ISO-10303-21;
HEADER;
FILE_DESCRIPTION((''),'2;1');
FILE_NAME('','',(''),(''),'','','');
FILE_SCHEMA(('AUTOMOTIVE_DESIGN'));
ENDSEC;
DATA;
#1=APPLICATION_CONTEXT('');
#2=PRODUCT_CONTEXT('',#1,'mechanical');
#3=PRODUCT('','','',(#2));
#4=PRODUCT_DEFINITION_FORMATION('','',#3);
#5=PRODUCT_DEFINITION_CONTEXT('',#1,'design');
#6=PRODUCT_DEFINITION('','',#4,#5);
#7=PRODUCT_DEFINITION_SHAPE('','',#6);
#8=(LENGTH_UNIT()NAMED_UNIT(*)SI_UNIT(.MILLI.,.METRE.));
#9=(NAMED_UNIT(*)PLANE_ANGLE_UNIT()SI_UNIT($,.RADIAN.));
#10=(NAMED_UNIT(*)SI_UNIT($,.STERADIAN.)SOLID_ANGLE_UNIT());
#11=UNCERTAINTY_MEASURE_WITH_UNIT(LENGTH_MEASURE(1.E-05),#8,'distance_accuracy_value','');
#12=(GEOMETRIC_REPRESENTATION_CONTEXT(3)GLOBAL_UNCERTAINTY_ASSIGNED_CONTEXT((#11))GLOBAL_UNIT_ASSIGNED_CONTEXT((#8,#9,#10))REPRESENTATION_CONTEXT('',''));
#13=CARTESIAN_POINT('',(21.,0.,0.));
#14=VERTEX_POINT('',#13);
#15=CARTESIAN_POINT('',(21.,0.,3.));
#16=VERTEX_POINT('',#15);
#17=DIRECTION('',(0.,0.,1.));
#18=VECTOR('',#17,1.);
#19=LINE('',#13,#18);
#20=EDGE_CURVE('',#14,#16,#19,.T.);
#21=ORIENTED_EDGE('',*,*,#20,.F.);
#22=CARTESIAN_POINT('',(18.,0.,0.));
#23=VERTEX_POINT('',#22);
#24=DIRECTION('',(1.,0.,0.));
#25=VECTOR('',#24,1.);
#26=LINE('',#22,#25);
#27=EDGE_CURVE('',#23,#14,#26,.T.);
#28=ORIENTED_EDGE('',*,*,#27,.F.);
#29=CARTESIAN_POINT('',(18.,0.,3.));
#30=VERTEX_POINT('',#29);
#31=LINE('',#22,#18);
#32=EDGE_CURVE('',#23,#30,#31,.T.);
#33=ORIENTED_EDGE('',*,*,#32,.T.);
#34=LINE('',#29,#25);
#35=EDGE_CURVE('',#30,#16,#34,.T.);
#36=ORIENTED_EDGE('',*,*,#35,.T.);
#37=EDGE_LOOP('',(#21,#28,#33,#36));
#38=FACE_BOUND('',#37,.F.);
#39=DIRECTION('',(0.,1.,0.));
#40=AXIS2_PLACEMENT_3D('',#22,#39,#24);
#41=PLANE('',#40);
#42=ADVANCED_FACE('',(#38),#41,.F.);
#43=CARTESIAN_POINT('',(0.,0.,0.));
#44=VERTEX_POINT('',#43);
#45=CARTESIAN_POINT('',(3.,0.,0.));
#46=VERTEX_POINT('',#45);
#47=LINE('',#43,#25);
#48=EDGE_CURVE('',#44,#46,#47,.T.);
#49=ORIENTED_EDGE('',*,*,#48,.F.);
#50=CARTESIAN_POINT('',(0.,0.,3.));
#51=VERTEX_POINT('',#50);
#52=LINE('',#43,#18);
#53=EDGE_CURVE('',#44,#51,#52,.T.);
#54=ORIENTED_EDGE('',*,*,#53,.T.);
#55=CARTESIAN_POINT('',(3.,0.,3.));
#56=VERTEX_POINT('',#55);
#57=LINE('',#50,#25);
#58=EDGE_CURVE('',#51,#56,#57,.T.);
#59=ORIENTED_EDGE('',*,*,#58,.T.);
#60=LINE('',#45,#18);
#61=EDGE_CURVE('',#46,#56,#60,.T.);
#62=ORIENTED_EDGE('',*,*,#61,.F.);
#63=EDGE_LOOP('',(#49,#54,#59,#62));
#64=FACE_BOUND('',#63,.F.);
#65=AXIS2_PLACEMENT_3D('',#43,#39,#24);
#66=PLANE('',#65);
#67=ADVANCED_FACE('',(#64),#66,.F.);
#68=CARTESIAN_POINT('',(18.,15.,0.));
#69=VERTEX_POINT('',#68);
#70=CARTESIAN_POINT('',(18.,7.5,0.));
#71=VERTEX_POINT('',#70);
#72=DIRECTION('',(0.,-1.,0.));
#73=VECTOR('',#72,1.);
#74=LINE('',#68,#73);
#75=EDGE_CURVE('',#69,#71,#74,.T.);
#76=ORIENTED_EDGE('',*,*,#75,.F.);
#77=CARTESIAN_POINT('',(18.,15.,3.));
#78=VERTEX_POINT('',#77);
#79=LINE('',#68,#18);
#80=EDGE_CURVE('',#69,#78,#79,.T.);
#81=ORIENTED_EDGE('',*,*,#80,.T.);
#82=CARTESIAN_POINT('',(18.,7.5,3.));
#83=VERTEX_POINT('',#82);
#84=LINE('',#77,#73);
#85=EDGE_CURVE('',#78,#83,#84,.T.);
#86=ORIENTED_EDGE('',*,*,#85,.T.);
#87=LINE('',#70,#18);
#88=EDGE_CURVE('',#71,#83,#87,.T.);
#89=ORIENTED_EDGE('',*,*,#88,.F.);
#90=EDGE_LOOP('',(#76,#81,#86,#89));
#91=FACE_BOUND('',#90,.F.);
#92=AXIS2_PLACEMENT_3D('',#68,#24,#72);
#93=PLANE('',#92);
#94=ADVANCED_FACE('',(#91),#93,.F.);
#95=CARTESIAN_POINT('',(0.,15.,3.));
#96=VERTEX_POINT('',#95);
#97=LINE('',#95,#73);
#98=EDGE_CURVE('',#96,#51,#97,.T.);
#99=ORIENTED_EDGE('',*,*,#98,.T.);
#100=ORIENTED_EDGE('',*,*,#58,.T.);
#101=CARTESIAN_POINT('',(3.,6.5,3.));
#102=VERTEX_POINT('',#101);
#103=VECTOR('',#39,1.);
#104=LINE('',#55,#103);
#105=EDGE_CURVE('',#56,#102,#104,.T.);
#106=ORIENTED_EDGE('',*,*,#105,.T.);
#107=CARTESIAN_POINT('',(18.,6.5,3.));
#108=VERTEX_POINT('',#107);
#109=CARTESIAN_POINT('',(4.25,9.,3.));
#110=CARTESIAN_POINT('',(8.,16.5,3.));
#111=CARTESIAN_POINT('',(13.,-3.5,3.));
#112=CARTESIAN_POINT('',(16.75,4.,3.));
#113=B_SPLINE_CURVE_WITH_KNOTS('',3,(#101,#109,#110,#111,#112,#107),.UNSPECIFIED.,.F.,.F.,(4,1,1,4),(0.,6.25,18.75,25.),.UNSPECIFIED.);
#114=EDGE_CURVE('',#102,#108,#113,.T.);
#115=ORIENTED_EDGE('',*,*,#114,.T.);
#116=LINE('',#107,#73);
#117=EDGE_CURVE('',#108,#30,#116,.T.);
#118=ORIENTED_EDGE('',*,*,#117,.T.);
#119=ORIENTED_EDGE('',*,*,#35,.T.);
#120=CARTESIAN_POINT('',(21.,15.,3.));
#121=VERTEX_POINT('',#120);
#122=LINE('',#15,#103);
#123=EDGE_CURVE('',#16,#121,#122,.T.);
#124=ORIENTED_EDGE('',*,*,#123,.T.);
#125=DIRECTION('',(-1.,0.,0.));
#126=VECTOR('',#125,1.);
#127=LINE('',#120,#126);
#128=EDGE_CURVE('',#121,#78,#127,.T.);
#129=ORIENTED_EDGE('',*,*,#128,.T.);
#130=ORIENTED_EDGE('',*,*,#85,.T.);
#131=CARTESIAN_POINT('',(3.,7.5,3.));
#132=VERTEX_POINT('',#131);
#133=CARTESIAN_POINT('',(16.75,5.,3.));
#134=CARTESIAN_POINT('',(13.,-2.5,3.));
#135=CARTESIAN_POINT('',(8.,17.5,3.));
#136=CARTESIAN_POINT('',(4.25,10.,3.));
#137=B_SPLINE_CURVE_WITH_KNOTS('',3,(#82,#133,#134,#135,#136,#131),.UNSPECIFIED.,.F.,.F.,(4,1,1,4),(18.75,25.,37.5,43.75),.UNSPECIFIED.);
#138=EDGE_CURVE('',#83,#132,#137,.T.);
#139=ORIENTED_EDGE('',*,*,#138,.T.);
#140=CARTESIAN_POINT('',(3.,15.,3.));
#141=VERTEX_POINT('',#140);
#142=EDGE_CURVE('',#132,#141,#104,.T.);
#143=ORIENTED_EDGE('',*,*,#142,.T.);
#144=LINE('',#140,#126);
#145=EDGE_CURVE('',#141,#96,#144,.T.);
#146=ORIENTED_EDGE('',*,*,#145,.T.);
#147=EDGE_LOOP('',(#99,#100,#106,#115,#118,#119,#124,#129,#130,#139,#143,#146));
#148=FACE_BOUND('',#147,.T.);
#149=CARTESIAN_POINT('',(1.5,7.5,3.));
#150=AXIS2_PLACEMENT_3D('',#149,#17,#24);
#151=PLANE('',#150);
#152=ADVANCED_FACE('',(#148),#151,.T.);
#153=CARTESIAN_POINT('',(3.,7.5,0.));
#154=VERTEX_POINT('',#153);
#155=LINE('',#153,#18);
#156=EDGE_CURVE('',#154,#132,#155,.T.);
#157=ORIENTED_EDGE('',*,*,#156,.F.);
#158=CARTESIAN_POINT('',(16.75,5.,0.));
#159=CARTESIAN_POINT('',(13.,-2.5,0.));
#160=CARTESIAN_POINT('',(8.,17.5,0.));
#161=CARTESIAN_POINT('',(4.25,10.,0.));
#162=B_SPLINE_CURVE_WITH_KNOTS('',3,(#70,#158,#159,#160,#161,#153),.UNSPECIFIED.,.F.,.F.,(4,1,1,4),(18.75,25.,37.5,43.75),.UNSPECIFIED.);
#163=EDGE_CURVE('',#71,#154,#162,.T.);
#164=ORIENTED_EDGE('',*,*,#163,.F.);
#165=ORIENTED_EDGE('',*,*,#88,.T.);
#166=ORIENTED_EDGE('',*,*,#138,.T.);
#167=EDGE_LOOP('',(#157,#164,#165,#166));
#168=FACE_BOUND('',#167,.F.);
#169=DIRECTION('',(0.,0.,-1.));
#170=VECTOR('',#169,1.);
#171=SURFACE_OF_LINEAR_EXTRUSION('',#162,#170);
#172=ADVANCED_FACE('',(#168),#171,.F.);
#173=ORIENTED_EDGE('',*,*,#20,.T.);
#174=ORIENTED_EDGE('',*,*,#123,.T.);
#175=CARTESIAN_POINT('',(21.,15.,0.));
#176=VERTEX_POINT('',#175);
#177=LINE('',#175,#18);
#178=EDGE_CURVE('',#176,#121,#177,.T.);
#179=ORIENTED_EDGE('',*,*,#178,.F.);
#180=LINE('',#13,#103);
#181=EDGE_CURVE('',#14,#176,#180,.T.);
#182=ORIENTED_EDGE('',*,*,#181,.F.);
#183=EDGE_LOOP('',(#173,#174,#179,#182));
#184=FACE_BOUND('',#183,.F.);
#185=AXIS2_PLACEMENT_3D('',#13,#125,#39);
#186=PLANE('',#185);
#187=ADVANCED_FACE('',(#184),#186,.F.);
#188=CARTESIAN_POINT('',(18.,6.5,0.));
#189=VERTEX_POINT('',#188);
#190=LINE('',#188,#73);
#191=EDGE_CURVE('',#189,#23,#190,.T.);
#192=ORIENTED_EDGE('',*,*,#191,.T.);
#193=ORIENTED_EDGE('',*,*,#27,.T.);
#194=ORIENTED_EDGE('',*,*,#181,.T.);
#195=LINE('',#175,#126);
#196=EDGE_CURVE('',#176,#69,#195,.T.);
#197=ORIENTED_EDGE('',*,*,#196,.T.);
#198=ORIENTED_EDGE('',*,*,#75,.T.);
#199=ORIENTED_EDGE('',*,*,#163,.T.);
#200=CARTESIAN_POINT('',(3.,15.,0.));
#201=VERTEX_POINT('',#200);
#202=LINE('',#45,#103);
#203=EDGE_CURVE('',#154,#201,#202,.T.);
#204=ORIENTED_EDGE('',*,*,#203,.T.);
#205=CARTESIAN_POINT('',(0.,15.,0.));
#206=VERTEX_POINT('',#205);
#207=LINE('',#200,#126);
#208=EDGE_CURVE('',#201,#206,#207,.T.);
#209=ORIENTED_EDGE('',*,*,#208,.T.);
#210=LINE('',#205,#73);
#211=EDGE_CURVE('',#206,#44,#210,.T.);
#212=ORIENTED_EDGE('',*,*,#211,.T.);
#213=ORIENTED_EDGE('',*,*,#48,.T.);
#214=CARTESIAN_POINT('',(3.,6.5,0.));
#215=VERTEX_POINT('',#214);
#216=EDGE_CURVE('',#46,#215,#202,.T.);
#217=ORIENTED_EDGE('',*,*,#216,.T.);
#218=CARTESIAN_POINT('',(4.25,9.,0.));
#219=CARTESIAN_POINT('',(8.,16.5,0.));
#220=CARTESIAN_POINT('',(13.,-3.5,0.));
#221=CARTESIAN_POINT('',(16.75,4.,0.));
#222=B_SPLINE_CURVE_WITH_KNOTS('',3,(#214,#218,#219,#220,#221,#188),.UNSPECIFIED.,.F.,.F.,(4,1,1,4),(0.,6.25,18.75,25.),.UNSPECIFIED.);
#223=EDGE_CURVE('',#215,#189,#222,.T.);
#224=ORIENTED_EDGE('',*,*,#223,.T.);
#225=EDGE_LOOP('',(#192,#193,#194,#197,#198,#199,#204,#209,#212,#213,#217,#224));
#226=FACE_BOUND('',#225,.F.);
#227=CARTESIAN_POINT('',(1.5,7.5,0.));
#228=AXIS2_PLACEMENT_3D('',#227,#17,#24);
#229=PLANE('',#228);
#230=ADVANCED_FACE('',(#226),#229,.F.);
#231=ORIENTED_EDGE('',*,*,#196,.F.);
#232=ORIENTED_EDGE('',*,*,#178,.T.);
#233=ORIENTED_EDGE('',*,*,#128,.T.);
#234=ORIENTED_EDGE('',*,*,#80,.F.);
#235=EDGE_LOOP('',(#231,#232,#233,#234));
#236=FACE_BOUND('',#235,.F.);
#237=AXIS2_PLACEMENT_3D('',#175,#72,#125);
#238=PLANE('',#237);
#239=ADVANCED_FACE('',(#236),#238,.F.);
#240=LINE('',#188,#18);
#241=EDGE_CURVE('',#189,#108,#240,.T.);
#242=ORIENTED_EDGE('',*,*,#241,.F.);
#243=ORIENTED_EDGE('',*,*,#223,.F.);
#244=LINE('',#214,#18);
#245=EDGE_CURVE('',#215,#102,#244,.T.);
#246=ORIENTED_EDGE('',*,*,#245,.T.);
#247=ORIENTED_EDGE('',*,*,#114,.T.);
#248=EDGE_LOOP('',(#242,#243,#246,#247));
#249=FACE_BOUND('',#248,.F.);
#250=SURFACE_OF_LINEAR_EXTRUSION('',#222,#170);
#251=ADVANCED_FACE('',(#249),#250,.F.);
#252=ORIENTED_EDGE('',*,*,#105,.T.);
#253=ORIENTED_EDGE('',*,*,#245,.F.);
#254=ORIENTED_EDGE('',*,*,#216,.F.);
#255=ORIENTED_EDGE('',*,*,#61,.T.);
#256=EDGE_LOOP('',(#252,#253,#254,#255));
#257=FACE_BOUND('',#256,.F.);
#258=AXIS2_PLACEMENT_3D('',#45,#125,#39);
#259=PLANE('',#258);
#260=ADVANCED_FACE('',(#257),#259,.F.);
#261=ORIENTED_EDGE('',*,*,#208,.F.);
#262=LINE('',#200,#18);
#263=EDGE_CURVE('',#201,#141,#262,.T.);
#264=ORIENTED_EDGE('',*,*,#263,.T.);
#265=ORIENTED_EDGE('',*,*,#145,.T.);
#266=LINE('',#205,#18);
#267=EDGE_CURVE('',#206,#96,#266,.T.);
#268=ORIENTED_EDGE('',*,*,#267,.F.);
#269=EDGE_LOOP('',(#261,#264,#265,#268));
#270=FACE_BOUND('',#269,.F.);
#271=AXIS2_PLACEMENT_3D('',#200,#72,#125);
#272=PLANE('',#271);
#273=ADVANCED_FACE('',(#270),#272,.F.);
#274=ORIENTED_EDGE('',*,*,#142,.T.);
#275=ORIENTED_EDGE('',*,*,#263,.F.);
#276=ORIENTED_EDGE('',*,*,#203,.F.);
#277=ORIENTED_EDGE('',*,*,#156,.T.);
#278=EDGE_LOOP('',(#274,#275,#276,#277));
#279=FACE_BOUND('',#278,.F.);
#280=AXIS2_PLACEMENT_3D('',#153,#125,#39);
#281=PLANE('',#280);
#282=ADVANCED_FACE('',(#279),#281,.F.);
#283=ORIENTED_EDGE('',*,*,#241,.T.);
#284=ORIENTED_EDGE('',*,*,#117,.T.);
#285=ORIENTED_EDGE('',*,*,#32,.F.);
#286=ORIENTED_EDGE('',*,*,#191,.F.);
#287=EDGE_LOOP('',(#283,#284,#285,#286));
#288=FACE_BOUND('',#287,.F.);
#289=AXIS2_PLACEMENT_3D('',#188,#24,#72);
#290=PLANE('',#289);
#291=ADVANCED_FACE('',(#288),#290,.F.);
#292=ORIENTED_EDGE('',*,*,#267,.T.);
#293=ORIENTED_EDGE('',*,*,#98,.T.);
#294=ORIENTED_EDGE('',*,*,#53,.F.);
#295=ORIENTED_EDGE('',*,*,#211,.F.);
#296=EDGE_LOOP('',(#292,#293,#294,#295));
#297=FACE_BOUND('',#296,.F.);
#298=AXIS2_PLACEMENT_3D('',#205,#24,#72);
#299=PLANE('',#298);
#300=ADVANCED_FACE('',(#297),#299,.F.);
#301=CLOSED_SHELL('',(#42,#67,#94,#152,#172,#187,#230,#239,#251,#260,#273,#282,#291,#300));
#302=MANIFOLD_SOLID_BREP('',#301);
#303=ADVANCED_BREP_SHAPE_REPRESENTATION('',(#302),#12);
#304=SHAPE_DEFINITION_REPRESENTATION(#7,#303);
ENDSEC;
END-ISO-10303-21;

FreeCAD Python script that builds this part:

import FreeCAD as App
import Part
import Sketcher
from FreeCAD import Vector

doc = App.newDocument("Part")
body = doc.addObject("PartDesign::Body", "Body")

# Sketch on XY plane
sketch1 = doc.addObject("Sketcher::SketchObject", "Sketch")
body.addObject(sketch1)
sketch1.AttachmentSupport = (doc.XY_Plane, [""])
sketch1.MapMode = "FlatFace"
sketch1.addGeometry(Part.LineSegment(Vector(0, 15, 0), Vector(0, 0, 0)), False)
sketch1.addGeometry(Part.LineSegment(Vector(0, 0, 0), Vector(3, 0, 0)), False)
sketch1.addGeometry(Part.LineSegment(Vector(3, 0, 0), Vector(3, 6.5, 0)), False)
sketch1.addGeometry(Part.BSplineCurve([Vector(3, 6.5, 0), Vector(4.25, 9, 0), Vector(8, 16.5, 0), Vector(13, -3.5, 0), Vector(16.75, 4, 0), Vector(18, 6.5, 0)], [4, 1, 1, 4], [0, 6.25, 18.75, 25], False, 3, [1, 1, 1, 1, 1, 1], False), False)
sketch1.addGeometry(Part.LineSegment(Vector(18, 6.5, 0), Vector(18, 0, 0)), False)
sketch1.addGeometry(Part.LineSegment(Vector(18, 0, 0), Vector(21, 0, 0)), False)
sketch1.addGeometry(Part.LineSegment(Vector(21, 0, 0), Vector(21, 15, 0)), False)
sketch1.addGeometry(Part.LineSegment(Vector(21, 15, 0), Vector(18, 15, 0)), False)
sketch1.addGeometry(Part.LineSegment(Vector(18, 15, 0), Vector(18, 7.5, 0)), False)
sketch1.addGeometry(Part.BSplineCurve([Vector(18, 7.5, 0), Vector(16.75, 5, 0), Vector(13, -2.5, 0), Vector(8, 17.5, 0), Vector(4.25, 10, 0), Vector(3, 7.5, 0)], [4, 1, 1, 4], [18.75, 25, 37.5, 43.75], False, 3, [1, 1, 1, 1, 1, 1], False), False)
sketch1.addGeometry(Part.LineSegment(Vector(3, 7.5, 0), Vector(3, 15, 0)), False)
sketch1.addGeometry(Part.LineSegment(Vector(3, 15, 0), Vector(0, 15, 0)), False)
sketch1.addConstraint(Sketcher.Constraint("Block", 3))
sketch1.addConstraint(Sketcher.Constraint("Block", 9))
sketch1.addConstraint(Sketcher.Constraint("Coincident", 0, 2, 1, 1))
sketch1.addConstraint(Sketcher.Constraint("Coincident", 1, 2, 2, 1))
sketch1.addConstraint(Sketcher.Constraint("Coincident", 2, 2, 3, 1))
sketch1.addConstraint(Sketcher.Constraint("Coincident", 3, 2, 4, 1))
sketch1.addConstraint(Sketcher.Constraint("Coincident", 4, 2, 5, 1))
sketch1.addConstraint(Sketcher.Constraint("Coincident", 5, 2, 6, 1))
sketch1.addConstraint(Sketcher.Constraint("Coincident", 6, 2, 7, 1))
sketch1.addConstraint(Sketcher.Constraint("Coincident", 7, 2, 8, 1))
sketch1.addConstraint(Sketcher.Constraint("Coincident", 8, 2, 9, 1))
sketch1.addConstraint(Sketcher.Constraint("Coincident", 9, 2, 10, 1))
sketch1.addConstraint(Sketcher.Constraint("Coincident", 10, 2, 11, 1))
sketch1.addConstraint(Sketcher.Constraint("Coincident", 11, 2, 0, 1))
sketch1.addConstraint(Sketcher.Constraint("Vertical", 0))
sketch1.addConstraint(Sketcher.Constraint("Horizontal", 1))
sketch1.addConstraint(Sketcher.Constraint("Vertical", 2))
sketch1.addConstraint(Sketcher.Constraint("Vertical", 4))
sketch1.addConstraint(Sketcher.Constraint("Horizontal", 5))
sketch1.addConstraint(Sketcher.Constraint("Vertical", 6))
sketch1.addConstraint(Sketcher.Constraint("Horizontal", 7))
sketch1.addConstraint(Sketcher.Constraint("Vertical", 8))
sketch1.addConstraint(Sketcher.Constraint("Vertical", 10))
sketch1.addConstraint(Sketcher.Constraint("Horizontal", 11))
sketch1.addConstraint(Sketcher.Constraint("Coincident", 0, 2, -1, 1))
sketch1.addConstraint(Sketcher.Constraint("PointOnObject", 4, 2, -1))
sketch1.addConstraint(Sketcher.Constraint("Horizontal", 7, 2, 10, 2))
sketch1.addConstraint(Sketcher.Constraint("Equal", 1, 5))
sketch1.addConstraint(Sketcher.Constraint("DistanceY", 0, 2, 0, 1, 15.0))
pad1 = doc.addObject("PartDesign::Pad", "Pad")
body.addObject(pad1)
pad1.Profile = sketch1
pad1.Length = 3

doc.recompute()
